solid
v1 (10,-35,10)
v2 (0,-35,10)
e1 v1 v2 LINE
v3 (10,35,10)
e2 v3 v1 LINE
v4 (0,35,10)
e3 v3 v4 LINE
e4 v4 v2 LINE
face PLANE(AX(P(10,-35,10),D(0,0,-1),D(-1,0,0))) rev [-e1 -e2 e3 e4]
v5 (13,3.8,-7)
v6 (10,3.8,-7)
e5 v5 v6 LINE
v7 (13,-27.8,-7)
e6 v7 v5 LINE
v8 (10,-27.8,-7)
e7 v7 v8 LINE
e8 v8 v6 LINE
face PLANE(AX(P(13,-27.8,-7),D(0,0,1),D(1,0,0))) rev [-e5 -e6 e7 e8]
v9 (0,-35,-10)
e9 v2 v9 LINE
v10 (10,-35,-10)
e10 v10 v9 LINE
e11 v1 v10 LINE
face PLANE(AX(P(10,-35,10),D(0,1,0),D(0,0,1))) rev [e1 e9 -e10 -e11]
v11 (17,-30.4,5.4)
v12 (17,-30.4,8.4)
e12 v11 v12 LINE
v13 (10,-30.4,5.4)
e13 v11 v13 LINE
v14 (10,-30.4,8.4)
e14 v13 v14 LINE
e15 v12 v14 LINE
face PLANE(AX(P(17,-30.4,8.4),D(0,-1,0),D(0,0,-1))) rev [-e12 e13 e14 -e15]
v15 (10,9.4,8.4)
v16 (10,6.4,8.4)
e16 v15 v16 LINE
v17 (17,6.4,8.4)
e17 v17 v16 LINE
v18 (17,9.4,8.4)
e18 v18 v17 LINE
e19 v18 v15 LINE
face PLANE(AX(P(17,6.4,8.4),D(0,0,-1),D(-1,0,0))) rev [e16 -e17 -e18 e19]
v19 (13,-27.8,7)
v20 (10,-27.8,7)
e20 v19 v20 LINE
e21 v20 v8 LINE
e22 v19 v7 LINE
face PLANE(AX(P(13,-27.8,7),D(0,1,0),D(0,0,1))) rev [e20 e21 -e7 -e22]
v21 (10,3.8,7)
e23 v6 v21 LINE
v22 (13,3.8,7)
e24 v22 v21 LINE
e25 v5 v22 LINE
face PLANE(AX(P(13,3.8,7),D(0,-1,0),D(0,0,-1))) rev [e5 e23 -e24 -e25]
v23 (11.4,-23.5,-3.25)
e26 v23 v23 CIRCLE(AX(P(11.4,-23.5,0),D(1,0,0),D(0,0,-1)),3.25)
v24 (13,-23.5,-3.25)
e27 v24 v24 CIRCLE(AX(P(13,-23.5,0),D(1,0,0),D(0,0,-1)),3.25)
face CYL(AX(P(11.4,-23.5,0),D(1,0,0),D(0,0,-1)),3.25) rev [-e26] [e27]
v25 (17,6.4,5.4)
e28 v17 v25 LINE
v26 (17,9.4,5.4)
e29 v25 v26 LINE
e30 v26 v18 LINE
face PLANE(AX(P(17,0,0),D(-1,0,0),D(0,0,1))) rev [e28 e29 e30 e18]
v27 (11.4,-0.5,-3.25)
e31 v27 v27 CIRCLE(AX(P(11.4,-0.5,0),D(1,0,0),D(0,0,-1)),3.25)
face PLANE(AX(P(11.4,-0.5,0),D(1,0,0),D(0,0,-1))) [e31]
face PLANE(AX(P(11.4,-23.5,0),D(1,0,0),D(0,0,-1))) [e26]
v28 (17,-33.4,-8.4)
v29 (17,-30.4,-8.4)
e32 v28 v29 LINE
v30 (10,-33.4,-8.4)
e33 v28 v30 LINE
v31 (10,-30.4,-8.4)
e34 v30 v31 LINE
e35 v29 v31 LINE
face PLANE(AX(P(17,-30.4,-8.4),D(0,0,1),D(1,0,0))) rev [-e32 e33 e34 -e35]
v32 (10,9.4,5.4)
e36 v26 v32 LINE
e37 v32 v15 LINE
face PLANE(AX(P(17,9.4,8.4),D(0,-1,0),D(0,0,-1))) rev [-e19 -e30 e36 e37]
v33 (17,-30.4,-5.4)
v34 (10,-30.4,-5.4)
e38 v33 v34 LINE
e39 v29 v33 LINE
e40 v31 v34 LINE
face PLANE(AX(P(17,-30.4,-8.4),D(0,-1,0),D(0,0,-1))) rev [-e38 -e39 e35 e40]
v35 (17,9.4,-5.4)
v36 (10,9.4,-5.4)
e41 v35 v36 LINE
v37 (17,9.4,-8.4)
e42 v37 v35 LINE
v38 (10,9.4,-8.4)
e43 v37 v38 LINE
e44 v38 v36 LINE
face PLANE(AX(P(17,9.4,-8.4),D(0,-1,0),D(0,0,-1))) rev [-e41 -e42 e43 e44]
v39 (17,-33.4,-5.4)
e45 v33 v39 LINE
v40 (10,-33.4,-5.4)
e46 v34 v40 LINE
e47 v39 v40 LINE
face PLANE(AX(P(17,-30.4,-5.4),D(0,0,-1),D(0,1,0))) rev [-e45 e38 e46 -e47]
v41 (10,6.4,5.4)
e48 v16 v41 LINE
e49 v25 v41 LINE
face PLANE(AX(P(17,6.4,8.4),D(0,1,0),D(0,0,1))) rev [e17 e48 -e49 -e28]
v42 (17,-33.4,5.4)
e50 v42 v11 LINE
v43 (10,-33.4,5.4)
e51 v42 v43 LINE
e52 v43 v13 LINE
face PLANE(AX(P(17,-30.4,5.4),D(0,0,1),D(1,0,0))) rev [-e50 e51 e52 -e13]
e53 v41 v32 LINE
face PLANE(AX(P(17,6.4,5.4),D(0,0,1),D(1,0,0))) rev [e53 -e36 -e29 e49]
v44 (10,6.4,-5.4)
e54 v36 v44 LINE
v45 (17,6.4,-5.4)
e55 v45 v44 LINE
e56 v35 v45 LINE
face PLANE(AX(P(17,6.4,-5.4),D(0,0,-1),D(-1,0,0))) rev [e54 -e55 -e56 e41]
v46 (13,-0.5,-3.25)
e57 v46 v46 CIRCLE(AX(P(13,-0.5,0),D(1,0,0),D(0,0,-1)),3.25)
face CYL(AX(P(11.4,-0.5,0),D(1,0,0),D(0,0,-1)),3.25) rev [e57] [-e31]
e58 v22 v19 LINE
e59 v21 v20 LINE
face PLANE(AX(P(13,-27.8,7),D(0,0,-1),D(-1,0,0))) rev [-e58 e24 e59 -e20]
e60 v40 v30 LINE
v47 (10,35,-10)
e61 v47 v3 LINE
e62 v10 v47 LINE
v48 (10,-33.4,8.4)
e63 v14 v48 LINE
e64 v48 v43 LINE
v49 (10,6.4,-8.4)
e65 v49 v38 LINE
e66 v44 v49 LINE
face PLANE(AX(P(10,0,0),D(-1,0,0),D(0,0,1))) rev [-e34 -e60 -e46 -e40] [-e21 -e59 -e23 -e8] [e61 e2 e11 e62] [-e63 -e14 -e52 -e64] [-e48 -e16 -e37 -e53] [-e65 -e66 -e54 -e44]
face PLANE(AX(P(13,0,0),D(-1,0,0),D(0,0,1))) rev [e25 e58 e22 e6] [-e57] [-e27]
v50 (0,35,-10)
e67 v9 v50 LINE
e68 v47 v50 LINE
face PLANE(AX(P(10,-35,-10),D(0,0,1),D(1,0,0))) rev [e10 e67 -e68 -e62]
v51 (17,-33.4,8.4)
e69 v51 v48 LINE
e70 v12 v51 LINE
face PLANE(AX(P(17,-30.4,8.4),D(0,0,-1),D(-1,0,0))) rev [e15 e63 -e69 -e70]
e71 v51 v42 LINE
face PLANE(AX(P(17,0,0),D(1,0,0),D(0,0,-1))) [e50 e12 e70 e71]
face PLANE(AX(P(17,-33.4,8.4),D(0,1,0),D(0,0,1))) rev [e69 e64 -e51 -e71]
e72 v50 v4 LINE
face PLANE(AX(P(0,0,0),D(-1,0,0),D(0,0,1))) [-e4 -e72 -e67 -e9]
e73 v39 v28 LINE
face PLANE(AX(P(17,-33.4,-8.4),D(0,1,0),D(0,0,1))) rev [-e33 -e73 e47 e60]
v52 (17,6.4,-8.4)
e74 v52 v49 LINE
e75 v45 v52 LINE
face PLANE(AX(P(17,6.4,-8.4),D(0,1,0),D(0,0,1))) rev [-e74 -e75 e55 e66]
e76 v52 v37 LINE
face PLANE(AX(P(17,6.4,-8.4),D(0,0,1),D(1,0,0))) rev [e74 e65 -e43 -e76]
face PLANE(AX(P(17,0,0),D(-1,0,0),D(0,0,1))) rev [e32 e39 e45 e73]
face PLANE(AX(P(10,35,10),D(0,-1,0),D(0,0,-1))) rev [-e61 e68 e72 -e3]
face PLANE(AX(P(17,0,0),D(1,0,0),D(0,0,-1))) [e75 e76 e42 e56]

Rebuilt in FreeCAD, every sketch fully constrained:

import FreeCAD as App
import Part
import Sketcher

V = App.Vector

doc = App.newDocument("Part")
body = doc.addObject("PartDesign::Body", "Body")

# Sketch on YZ plane
sketch1 = doc.addObject("Sketcher::SketchObject", "Sketch")
body.addObject(sketch1)
sketch1.AttachmentSupport = (doc.YZ_Plane, [""])
sketch1.MapMode = "FlatFace"
sketch1.addGeometry([
    Part.LineSegment(V(35, 10, 0), V(-35, 10, 0)),
    Part.LineSegment(V(-35, 10, 0), V(-35, -10, 0)),
    Part.LineSegment(V(-35, -10, 0), V(35, -10, 0)),
    Part.LineSegment(V(35, -10, 0), V(35, 10, 0)),
], False)
sketch1.addConstraint([
    Sketcher.Constraint("Coincident", 0, 2, 1, 1),
    Sketcher.Constraint("Coincident", 1, 2, 2, 1),
    Sketcher.Constraint("Coincident", 2, 2, 3, 1),
    Sketcher.Constraint("Coincident", 3, 2, 0, 1),
    Sketcher.Constraint("Horizontal", 0),
    Sketcher.Constraint("Vertical", 1),
    Sketcher.Constraint("Horizontal", 2),
    Sketcher.Constraint("Vertical", 3),
    Sketcher.Constraint("Symmetric", 0, 2, 2, 2, -1, 1),
    Sketcher.Constraint("DistanceX", 0, 2, 0, 1, 70.0),
    Sketcher.Constraint("DistanceY", 1, 2, 1, 1, 20.0),
])
pad1 = doc.addObject("PartDesign::Pad", "Pad")
body.addObject(pad1)
pad1.Profile = sketch1
pad1.Length = 10

# Sketch on YZ plane
sketch2 = doc.addObject("Sketcher::SketchObject", "Sketch001")
body.addObject(sketch2)
sketch2.AttachmentSupport = (doc.YZ_Plane, [""])
sketch2.MapMode = "FlatFace"
sketch2.AttachmentOffset = App.Placement(V(0, 0, 10), App.Rotation())
sketch2.addGeometry([
    Part.LineSegment(V(9.4, 8.4, 0), V(6.4, 8.4, 0)),  # 0
    Part.LineSegment(V(6.4, 8.4, 0), V(6.4, 5.4, 0)),  # 1
    Part.LineSegment(V(6.4, 5.4, 0), V(9.4, 5.4, 0)),  # 2
    Part.LineSegment(V(9.4, 5.4, 0), V(9.4, 8.4, 0)),  # 3
    Part.LineSegment(V(9.4, -5.4, 0), V(6.4, -5.4, 0)),  # 4
    Part.LineSegment(V(6.4, -5.4, 0), V(6.4, -8.4, 0)),  # 5
    Part.LineSegment(V(6.4, -8.4, 0), V(9.4, -8.4, 0)),  # 6
    Part.LineSegment(V(9.4, -8.4, 0), V(9.4, -5.4, 0)),  # 7
    Part.LineSegment(V(-30.4, -5.4, 0), V(-33.4, -5.4, 0)),  # 8
    Part.LineSegment(V(-33.4, -5.4, 0), V(-33.4, -8.4, 0)),  # 9
    Part.LineSegment(V(-33.4, -8.4, 0), V(-30.4, -8.4, 0)),  # 10
    Part.LineSegment(V(-30.4, -8.4, 0), V(-30.4, -5.4, 0)),  # 11
    Part.LineSegment(V(-30.4, 8.4, 0), V(-33.4, 8.4, 0)),  # 12
    Part.LineSegment(V(-33.4, 8.4, 0), V(-33.4, 5.4, 0)),  # 13
    Part.LineSegment(V(-33.4, 5.4, 0), V(-30.4, 5.4, 0)),  # 14
    Part.LineSegment(V(-30.4, 5.4, 0), V(-30.4, 8.4, 0)),  # 15
], False)
sketch2.addConstraint([
    Sketcher.Constraint("Coincident", 0, 2, 1, 1),
    Sketcher.Constraint("Coincident", 1, 2, 2, 1),
    Sketcher.Constraint("Coincident", 2, 2, 3, 1),
    Sketcher.Constraint("Coincident", 3, 2, 0, 1),
    Sketcher.Constraint("Coincident", 4, 2, 5, 1),
    Sketcher.Constraint("Coincident", 5, 2, 6, 1),
    Sketcher.Constraint("Coincident", 6, 2, 7, 1),
    Sketcher.Constraint("Coincident", 7, 2, 4, 1),
    Sketcher.Constraint("Coincident", 8, 2, 9, 1),
    Sketcher.Constraint("Coincident", 9, 2, 10, 1),
    Sketcher.Constraint("Coincident", 10, 2, 11, 1),
    Sketcher.Constraint("Coincident", 11, 2, 8, 1),
    Sketcher.Constraint("Coincident", 12, 2, 13, 1),
    Sketcher.Constraint("Coincident", 13, 2, 14, 1),
    Sketcher.Constraint("Coincident", 14, 2, 15, 1),
    Sketcher.Constraint("Coincident", 15, 2, 12, 1),
    Sketcher.Constraint("Horizontal", 0),
    Sketcher.Constraint("Vertical", 1),
    Sketcher.Constraint("Horizontal", 2),
    Sketcher.Constraint("Vertical", 3),
    Sketcher.Constraint("Horizontal", 4),
    Sketcher.Constraint("Vertical", 5),
    Sketcher.Constraint("Horizontal", 6),
    Sketcher.Constraint("Vertical", 7),
    Sketcher.Constraint("Horizontal", 8),
    Sketcher.Constraint("Vertical", 9),
    Sketcher.Constraint("Horizontal", 10),
    Sketcher.Constraint("Vertical", 11),
    Sketcher.Constraint("Horizontal", 12),
    Sketcher.Constraint("Vertical", 13),
    Sketcher.Constraint("Horizontal", 14),
    Sketcher.Constraint("Vertical", 15),
    Sketcher.Constraint("Symmetric", 1, 2, 4, 2, -1),
    Sketcher.Constraint("Symmetric", 3, 2, 6, 2, -1),
    Sketcher.Constraint("Symmetric", 9, 2, 12, 2, -1),
    Sketcher.Constraint("Symmetric", 11, 2, 14, 2, -1),
    Sketcher.Constraint("Horizontal", 7, 2, 8, 2),
    Sketcher.Constraint("Horizontal", 6, 2, 9, 2),
    Sketcher.Constraint("Equal", 6, 8),
    Sketcher.Constraint("Equal", 14, 1),
    Sketcher.Constraint("DistanceX", 0, 2, 0, 1, 3.0),
    Sketcher.Constraint("DistanceX", -1, 1, 0, 2, 6.4),
    Sketcher.Constraint("DistanceY", -1, 1, 0, 2, 8.4),
    Sketcher.Constraint("DistanceX", 8, 2, -1, 1, 33.4),
])
pad2 = doc.addObject("PartDesign::Pad", "Pad001")
body.addObject(pad2)
pad2.Profile = sketch2
pad2.Length = 7

# Sketch on YZ plane
sketch3 = doc.addObject("Sketcher::SketchObject", "Sketch002")
body.addObject(sketch3)
sketch3.AttachmentSupport = (doc.YZ_Plane, [""])
sketch3.MapMode = "FlatFace"
sketch3.AttachmentOffset = App.Placement(V(0, 0, 10), App.Rotation())
sketch3.addGeometry([
    Part.LineSegment(V(4, 7, 0), V(-28, 7, 0)),
    Part.LineSegment(V(-28, 7, 0), V(-28, -7, 0)),
    Part.LineSegment(V(-28, -7, 0), V(4, -7, 0)),
    Part.LineSegment(V(4, -7, 0), V(4, 7, 0)),
], False)
sketch3.addConstraint([
    Sketcher.Constraint("Coincident", 0, 2, 1, 1),
    Sketcher.Constraint("Coincident", 1, 2, 2, 1),
    Sketcher.Constraint("Coincident", 2, 2, 3, 1),
    Sketcher.Constraint("Coincident", 3, 2, 0, 1),
    Sketcher.Constraint("Horizontal", 0),
    Sketcher.Constraint("Vertical", 1),
    Sketcher.Constraint("Horizontal", 2),
    Sketcher.Constraint("Vertical", 3),
    Sketcher.Constraint("DistanceY", 1, 2, 1, 1, 14.0),
    Sketcher.Constraint("DistanceX", 0, 2, 0, 1, 31.6),
    Sketcher.Constraint("DistanceY", -1, 1, 0, 2, 7.0),
    Sketcher.Constraint("DistanceX", 0, 2, -1, 1, 27.8),
])
pad3 = doc.addObject("PartDesign::Pad", "Pad002")
body.addObject(pad3)
pad3.Profile = sketch3
pad3.Length = 3

# Sketch on YZ plane
sketch4 = doc.addObject("Sketcher::SketchObject", "Sketch003")
body.addObject(sketch4)
sketch4.AttachmentSupport = (doc.YZ_Plane, [""])
sketch4.MapMode = "FlatFace"
sketch4.AttachmentOffset = App.Placement(V(0, 0, 13), App.Rotation())
sketch4.addGeometry([
    Part.Circle(V(-23.5, 0, 0), V(0, 0, 1), 3.2),
    Part.Circle(V(-0.5, 0, 0), V(0, 0, 1), 3.2),
], False)
sketch4.addConstraint([
    Sketcher.Constraint("Equal", 0, 1),
    Sketcher.Constraint("PointOnObject", 0, 3, -1),
    Sketcher.Constraint("PointOnObject", 1, 3, -1),
    Sketcher.Constraint("Diameter", 0, 6.5),
    Sketcher.Constraint("DistanceX", 0, 3, 1, 3, 23.0),
    Sketcher.Constraint("DistanceX", 0, 3, -1, 1, 23.5),
])
pocket1 = doc.addObject("PartDesign::Pocket", "Pocket")
body.addObject(pocket1)
pocket1.Profile = sketch4
pocket1.Length = 1.6

doc.recompute()
